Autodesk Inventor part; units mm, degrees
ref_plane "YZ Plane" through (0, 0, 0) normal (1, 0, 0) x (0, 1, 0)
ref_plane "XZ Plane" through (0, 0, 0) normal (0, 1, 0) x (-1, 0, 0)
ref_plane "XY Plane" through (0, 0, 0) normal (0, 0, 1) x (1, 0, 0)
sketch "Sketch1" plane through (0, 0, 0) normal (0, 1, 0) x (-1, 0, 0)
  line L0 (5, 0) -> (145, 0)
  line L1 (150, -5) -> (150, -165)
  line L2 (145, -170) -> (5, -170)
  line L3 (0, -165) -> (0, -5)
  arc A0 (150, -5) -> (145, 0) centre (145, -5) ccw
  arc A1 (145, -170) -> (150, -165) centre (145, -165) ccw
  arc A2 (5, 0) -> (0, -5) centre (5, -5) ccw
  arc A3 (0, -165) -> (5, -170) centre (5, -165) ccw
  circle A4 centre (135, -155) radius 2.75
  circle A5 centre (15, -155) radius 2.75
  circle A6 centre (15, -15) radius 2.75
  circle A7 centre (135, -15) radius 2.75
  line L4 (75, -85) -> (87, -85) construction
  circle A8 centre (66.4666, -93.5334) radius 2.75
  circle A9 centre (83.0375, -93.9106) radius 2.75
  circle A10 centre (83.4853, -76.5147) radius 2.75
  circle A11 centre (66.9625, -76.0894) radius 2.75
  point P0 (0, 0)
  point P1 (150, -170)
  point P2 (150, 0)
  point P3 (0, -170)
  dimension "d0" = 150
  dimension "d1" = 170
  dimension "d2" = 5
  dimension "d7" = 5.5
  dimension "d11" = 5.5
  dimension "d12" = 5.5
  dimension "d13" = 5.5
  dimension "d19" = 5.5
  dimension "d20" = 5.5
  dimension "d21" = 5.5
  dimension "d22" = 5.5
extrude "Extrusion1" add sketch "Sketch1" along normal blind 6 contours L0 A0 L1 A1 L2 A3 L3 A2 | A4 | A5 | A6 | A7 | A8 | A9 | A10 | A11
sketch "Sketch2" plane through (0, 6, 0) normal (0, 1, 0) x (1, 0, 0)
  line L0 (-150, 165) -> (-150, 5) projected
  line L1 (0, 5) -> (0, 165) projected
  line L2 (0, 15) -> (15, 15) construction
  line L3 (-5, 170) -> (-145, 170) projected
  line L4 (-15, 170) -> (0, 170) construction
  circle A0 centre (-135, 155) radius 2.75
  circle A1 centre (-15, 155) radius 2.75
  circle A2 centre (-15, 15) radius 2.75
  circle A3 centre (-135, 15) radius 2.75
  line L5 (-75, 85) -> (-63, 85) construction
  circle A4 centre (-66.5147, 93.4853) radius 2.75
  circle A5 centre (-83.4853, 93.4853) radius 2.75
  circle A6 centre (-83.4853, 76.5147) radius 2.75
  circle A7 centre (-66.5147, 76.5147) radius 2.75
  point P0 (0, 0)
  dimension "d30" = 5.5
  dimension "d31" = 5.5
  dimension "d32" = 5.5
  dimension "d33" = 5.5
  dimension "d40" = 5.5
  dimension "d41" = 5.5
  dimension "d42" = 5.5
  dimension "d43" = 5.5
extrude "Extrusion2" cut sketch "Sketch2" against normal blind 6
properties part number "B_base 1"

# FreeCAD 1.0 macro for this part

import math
import FreeCAD as App
import Part
import Sketcher

doc = App.newDocument("Part")
body = doc.addObject("PartDesign::Body", "Body")

# Sketch on XZ plane
sketch1 = doc.addObject("Sketcher::SketchObject", "Sketch")
body.addObject(sketch1)
sketch1.AttachmentSupport = (doc.XZ_Plane, [""])
sketch1.MapMode = "FlatFace"
sketch1.addGeometry([
    Part.LineSegment(App.Vector(-145, 0, 0), App.Vector(-5, 0, 0)),  # 0
    Part.ArcOfCircle(Part.Circle(App.Vector(-5, -5, 0), App.Vector(0, 0, 1), 5), math.radians(0), math.radians(90)),  # 1
    Part.LineSegment(App.Vector(0, -5, 0), App.Vector(0, -165, 0)),  # 2
    Part.ArcOfCircle(Part.Circle(App.Vector(-5, -165, 0), App.Vector(0, 0, 1), 5), math.radians(-90), math.radians(0)),  # 3
    Part.LineSegment(App.Vector(-5, -170, 0), App.Vector(-145, -170, 0)),  # 4
    Part.ArcOfCircle(Part.Circle(App.Vector(-145, -165, 0), App.Vector(0, 0, 1), 5), math.radians(180), math.radians(270)),  # 5
    Part.LineSegment(App.Vector(-150, -165, 0), App.Vector(-150, -5, 0)),  # 6
    Part.ArcOfCircle(Part.Circle(App.Vector(-145, -5, 0), App.Vector(0, 0, 1), 5), math.radians(90), math.radians(180)),  # 7
], False)
sketch1.addConstraint([
    Sketcher.Constraint("Tangent", 0, 2, 1, 2),
    Sketcher.Constraint("Tangent", 1, 1, 2, 1),
    Sketcher.Constraint("Tangent", 2, 2, 3, 2),
    Sketcher.Constraint("Tangent", 3, 1, 4, 1),
    Sketcher.Constraint("Tangent", 4, 2, 5, 2),
    Sketcher.Constraint("Tangent", 5, 1, 6, 1),
    Sketcher.Constraint("Tangent", 6, 2, 7, 2),
    Sketcher.Constraint("Tangent", 7, 1, 0, 1),
    Sketcher.Constraint("Horizontal", 0),
    Sketcher.Constraint("Vertical", 2),
    Sketcher.Constraint("Horizontal", 4),
    Sketcher.Constraint("Vertical", 6),
    Sketcher.Constraint("Equal", 1, 3),
    Sketcher.Constraint("Equal", 3, 5),
    Sketcher.Constraint("Equal", 5, 7),
    Sketcher.Constraint("PointOnObject", 0, 2, -1),
    Sketcher.Constraint("PointOnObject", 1, 1, -2),
    Sketcher.Constraint("Radius", 1, 5.0),
    Sketcher.Constraint("DistanceY", 3, 1, -1, 1, 170.0),
    Sketcher.Constraint("DistanceX", 5, 1, -1, 1, 150.0),
])
pad1 = doc.addObject("PartDesign::Pad", "Pad")
body.addObject(pad1)
pad1.Profile = sketch1
pad1.Length = 6
pad1.Reversed = True

# Sketch on XZ plane
sketch2 = doc.addObject("Sketcher::SketchObject", "Sketch001")
body.addObject(sketch2)
sketch2.AttachmentSupport = (doc.XZ_Plane, [""])
sketch2.MapMode = "FlatFace"
sketch2.AttachmentOffset = App.Placement(App.Vector(0, 0, -6), App.Rotation())
sketch2.addGeometry([
    Part.Circle(App.Vector(-135, -155, 0), App.Vector(0, 0, 1), 2.8),  # 0
    Part.Circle(App.Vector(-15, -155, 0), App.Vector(0, 0, 1), 2.8),  # 1
    Part.Circle(App.Vector(-15, -15, 0), App.Vector(0, 0, 1), 2.8),  # 2
    Part.Circle(App.Vector(-135, -15, 0), App.Vector(0, 0, 1), 2.8),  # 3
    Part.Circle(App.Vector(-66.5, -93.5, 0), App.Vector(0, 0, 1), 2.8),  # 4
    Part.Circle(App.Vector(-83.5, -93.5, 0), App.Vector(0, 0, 1), 2.8),  # 5
    Part.Circle(App.Vector(-83.5, -76.5, 0), App.Vector(0, 0, 1), 2.8),  # 6
    Part.Circle(App.Vector(-66.5, -76.5, 0), App.Vector(0, 0, 1), 2.8),  # 7
], False)
sketch2.addConstraint([
    Sketcher.Constraint("Equal", 0, 1),
    Sketcher.Constraint("Equal", 1, 2),
    Sketcher.Constraint("Equal", 2, 3),
    Sketcher.Constraint("Equal", 3, 4),
    Sketcher.Constraint("Equal", 4, 5),
    Sketcher.Constraint("Equal", 5, 6),
    Sketcher.Constraint("Equal", 6, 7),
    Sketcher.Constraint("Horizontal", 0, 3, 1, 3),
    Sketcher.Constraint("Horizontal", 2, 3, 3, 3),
    Sketcher.Constraint("Horizontal", 4, 3, 5, 3),
    Sketcher.Constraint("Horizontal", 6, 3, 7, 3),
    Sketcher.Constraint("Vertical", 1, 3, 2, 3),
    Sketcher.Constraint("Vertical", 0, 3, 3, 3),
    Sketcher.Constraint("Vertical", 5, 3, 6, 3),
    Sketcher.Constraint("Vertical", 4, 3, 7, 3),
    Sketcher.Constraint("Diameter", 0, 5.5),
    Sketcher.Constraint("DistanceX", 0, 3, -1, 1, 135.0),
    Sketcher.Constraint("DistanceY", 0, 3, -1, 1, 155.0),
    Sketcher.Constraint("DistanceX", 1, 3, -1, 1, 15.0),
    Sketcher.Constraint("DistanceY", 2, 3, -1, 1, 15.0),
    Sketcher.Constraint("DistanceX", 4, 3, -1, 1, 66.5147),
    Sketcher.Constraint("DistanceY", 4, 3, -1, 1, 93.4853),
    Sketcher.Constraint("DistanceX", 5, 3, -1, 1, 83.4853),
    Sketcher.Constraint("DistanceY", 6, 3, -1, 1, 76.5147),
])
pocket1 = doc.addObject("PartDesign::Pocket", "Pocket")
body.addObject(pocket1)
pocket1.Profile = sketch2
pocket1.Length = 6
pocket1.Reversed = True

doc.recompute()
